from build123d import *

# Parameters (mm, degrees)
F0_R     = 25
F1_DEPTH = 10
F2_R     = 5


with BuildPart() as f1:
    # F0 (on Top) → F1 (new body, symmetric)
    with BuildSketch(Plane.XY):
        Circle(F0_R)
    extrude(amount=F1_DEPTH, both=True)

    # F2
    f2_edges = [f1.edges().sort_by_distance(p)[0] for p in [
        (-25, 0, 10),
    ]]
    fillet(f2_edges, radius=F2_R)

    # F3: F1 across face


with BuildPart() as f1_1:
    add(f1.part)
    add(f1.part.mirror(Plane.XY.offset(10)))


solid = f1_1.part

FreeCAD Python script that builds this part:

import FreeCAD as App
import Part
import Sketcher
from FreeCAD import Vector


def edges_at(feature, points):
    """Names of the edges that pass closest to the given points."""
    edges = feature.Shape.Edges
    near = lambda p: min(range(len(edges)), key=lambda i: edges[i].distToShape(Part.Vertex(*p))[0])
    return sorted({f"Edge{near(p) + 1}" for p in points})

doc = App.newDocument("Part")
body = doc.addObject("PartDesign::Body", "Body")

sketch1 = body.newObject("Sketcher::SketchObject", "Sketch")
sketch1.AttachmentSupport = (doc.getObject("XY_Plane"), [""])
sketch1.MapMode = "FlatFace"
sketch1.addGeometry(Part.Circle(Vector(0, 0, 0), Vector(0, 0, 1), 25), False)
sketch1.addConstraint([
    Sketcher.Constraint("Coincident", 0, 3, -1, 1),
    Sketcher.Constraint("Diameter", 0, 50.0),
])
pad1 = body.newObject("PartDesign::Pad", "Pad")
pad1.Profile = sketch1
pad1.Length = 20
pad1.Midplane = True
doc.recompute()

fillet = body.newObject("PartDesign::Fillet", "Fillet")
fillet.Base = (pad1, edges_at(pad1, [(-25, 0, 10)]))
fillet.Radius = 5
body2 = doc.addObject("PartDesign::Body", "Body001")
doc.recompute()

body2.BaseFeature = body
doc.recompute()

mirroring = doc.addObject("Part::Mirroring", "Mirroring")
mirroring.Source = body
mirroring.Base = Vector(0, 0, 10)
mirroring.Normal = Vector(0, 0, 1)
body3 = doc.addObject("PartDesign::Body", "Body002")
body3.BaseFeature = mirroring
boolean = body2.newObject("PartDesign::Boolean", "Boolean")
boolean.Type = "Fuse"
boolean.addObjects([body3])
doc.recompute()
mirroring.Visibility = False

doc.recompute()
